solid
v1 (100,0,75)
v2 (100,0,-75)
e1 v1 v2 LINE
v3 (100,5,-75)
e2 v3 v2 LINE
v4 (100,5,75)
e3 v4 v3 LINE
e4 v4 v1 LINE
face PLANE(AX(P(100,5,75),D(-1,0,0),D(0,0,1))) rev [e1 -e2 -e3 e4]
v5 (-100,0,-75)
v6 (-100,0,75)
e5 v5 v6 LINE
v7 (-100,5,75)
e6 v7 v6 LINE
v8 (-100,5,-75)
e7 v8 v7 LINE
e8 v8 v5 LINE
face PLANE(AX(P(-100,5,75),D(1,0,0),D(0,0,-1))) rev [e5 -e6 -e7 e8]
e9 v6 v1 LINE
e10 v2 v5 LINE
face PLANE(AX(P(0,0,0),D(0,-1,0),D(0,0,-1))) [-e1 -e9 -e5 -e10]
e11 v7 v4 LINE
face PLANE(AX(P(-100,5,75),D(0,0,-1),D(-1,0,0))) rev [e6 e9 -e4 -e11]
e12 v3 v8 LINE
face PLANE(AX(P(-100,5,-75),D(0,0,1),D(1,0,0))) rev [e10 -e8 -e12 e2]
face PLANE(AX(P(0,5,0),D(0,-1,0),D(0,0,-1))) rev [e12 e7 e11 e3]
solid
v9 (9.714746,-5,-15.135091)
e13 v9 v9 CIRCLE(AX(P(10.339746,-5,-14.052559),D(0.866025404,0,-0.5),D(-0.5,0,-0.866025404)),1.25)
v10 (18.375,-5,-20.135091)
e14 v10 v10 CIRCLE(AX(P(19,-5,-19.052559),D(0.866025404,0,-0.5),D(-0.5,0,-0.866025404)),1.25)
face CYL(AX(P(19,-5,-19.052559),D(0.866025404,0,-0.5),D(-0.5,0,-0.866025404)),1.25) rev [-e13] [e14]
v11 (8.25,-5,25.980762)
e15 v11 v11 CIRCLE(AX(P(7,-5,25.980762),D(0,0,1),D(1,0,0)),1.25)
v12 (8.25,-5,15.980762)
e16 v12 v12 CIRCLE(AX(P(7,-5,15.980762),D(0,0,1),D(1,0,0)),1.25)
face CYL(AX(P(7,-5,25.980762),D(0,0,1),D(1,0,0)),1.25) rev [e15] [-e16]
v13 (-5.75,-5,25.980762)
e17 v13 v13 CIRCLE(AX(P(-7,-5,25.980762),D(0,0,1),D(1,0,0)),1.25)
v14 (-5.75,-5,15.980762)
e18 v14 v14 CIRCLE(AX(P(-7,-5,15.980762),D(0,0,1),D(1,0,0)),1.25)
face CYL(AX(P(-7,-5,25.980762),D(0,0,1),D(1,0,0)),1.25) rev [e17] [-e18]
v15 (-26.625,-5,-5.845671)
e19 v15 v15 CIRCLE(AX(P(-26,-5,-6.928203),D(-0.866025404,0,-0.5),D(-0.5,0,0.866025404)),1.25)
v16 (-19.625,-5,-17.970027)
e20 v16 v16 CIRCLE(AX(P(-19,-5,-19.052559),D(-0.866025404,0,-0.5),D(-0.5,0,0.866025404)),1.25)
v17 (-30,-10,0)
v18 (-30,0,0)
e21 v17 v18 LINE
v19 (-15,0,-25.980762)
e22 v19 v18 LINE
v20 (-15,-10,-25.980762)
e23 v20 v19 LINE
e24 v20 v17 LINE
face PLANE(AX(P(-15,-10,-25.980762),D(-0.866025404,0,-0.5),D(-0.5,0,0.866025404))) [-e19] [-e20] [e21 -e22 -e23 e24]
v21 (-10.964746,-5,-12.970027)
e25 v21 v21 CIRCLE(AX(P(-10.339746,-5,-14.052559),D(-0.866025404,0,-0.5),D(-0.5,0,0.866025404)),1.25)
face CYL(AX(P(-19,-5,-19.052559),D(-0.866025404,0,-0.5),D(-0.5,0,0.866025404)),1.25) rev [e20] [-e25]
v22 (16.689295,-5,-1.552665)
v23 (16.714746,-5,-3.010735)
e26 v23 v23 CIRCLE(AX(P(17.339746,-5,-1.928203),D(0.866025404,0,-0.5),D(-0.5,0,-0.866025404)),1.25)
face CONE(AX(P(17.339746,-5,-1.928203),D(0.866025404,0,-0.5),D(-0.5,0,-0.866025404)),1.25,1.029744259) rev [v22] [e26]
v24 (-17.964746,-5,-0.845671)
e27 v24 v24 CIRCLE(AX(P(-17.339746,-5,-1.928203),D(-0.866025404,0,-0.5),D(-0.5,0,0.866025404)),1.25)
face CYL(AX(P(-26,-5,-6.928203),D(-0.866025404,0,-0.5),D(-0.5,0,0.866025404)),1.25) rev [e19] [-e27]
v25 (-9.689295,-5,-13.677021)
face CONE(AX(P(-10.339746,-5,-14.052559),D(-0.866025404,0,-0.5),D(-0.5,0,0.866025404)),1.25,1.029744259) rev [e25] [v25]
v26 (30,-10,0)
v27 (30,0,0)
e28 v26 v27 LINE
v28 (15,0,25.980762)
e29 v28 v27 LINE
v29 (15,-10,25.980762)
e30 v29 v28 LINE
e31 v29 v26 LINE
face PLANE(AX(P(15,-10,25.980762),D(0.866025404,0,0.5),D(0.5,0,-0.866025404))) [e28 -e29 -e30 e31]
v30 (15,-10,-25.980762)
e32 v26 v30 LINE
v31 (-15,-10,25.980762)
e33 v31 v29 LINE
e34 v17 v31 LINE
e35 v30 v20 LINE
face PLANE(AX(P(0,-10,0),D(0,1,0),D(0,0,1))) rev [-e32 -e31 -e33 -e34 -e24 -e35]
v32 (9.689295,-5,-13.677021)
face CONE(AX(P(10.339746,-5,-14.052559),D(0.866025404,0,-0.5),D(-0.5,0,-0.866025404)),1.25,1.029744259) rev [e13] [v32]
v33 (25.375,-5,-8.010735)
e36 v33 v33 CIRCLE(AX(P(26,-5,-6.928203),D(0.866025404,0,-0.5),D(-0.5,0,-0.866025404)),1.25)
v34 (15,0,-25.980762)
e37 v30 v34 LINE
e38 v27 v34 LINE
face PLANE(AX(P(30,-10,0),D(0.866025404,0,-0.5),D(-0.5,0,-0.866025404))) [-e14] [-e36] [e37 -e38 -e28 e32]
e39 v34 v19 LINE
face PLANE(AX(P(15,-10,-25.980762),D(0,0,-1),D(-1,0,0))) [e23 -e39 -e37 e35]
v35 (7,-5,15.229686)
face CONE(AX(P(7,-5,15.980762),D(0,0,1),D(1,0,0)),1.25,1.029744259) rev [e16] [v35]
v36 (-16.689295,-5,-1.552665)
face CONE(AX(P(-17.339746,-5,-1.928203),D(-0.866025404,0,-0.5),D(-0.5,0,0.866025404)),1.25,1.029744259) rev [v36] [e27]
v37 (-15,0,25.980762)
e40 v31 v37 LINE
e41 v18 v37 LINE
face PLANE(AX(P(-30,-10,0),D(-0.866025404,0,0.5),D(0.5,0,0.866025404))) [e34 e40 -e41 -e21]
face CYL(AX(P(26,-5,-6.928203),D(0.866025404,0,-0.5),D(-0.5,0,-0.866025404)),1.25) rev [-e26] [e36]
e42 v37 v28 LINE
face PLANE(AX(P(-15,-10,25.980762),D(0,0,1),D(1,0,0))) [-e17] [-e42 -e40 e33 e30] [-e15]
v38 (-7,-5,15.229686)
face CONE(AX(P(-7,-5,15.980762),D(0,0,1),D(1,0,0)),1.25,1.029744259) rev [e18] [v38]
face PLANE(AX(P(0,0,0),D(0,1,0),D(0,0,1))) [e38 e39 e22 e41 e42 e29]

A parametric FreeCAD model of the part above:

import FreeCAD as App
import Part
import Sketcher
from FreeCAD import Vector
Q = App.Units.Quantity


def add_polygon(sketch, points):
    """Adds a closed chain of lines whose ends are joined by coincident constraints."""
    first, n = sketch.GeometryCount, len(points)
    for a, b in zip(points, points[1:] + points[:1]):
        sketch.addGeometry(Part.LineSegment(App.Vector(*a, 0), App.Vector(*b, 0)), False)
    for i in range(n):
        sketch.addConstraint(Sketcher.Constraint("Coincident", first + i, 2, first + (i + 1) % n, 1))

doc = App.newDocument("Part")
body = doc.addObject("PartDesign::Body", "Body")

# Sketch on XZ plane
sketch1 = body.newObject("Sketcher::SketchObject", "Sketch")
sketch1.AttachmentSupport = (doc.getObject("XZ_Plane"), [""])
sketch1.MapMode = "FlatFace"
add_polygon(sketch1, [(-100, -75), (-100, 75), (100, 75), (100, -75)])  # lines 0-3
sketch1.addConstraint(Sketcher.Constraint("Vertical", 0))
sketch1.addConstraint(Sketcher.Constraint("Horizontal", 1))
sketch1.addConstraint(Sketcher.Constraint("Vertical", 2))
sketch1.addConstraint(Sketcher.Constraint("Horizontal", 3))
sketch1.addConstraint(Sketcher.Constraint("Symmetric", 0, 2, 2, 2, -1, 1))
sketch1.addConstraint(Sketcher.Constraint("DistanceX", 1, 1, 1, 2, Q("200 mm")))
sketch1.addConstraint(Sketcher.Constraint("DistanceY", 0, 1, 0, 2, Q("150 mm")))
pad1 = body.newObject("PartDesign::Pad", "Pad")
pad1.Profile = sketch1
pad1.Length = 5
pad1.Reversed = True
body2 = doc.addObject("PartDesign::Body", "Body001")

# Sketch on XZ plane
sketch2 = body2.newObject("Sketcher::SketchObject", "Sketch001")
sketch2.AttachmentSupport = (doc.getObject("XZ_Plane001"), [""])
sketch2.MapMode = "FlatFace"
add_polygon(sketch2, [(-30, 0), (-15, 26), (15, 26), (30, 0), (15, -26), (-15, -26)])  # lines 0-5
sketch2.addConstraint(Sketcher.Constraint("Horizontal", 1))
sketch2.addConstraint(Sketcher.Constraint("Horizontal", 4))
sketch2.addConstraint(Sketcher.Constraint("Symmetric", 0, 2, 3, 2, -1, 1))
sketch2.addConstraint(Sketcher.Constraint("Symmetric", 2, 2, 5, 2, -1, 1))
sketch2.addConstraint(Sketcher.Constraint("PointOnObject", 2, 2, -1))
sketch2.addConstraint(Sketcher.Constraint("Parallel", 2, 5))
sketch2.addConstraint(Sketcher.Constraint("Vertical", 1, 2, 3, 2))
sketch2.addConstraint(Sketcher.Constraint("DistanceX", 1, 1, 1, 2, Q("30 mm")))
sketch2.addConstraint(Sketcher.Constraint("Angle", 0, Q("60 deg")))
sketch2.addConstraint(Sketcher.Constraint("Distance", 0, Q("30 mm")))
pad2 = body2.newObject("PartDesign::Pad", "Pad001")
pad2.Profile = sketch2
pad2.Length = 10

# Sketch on YZ plane
sketch3 = body2.newObject("Sketcher::SketchObject", "Sketch002")
sketch3.AttachmentSupport = (doc.getObject("YZ_Plane001"), [""])
sketch3.MapMode = "FlatFace"
sketch3.AttachmentOffset = App.Placement(Vector(0, 0, -7), App.Rotation())
add_polygon(sketch3, [(-5, 15.2), (-5, 26), (-6.2, 26), (-6.2, 16)])  # lines 0-3
sketch3.addGeometry(Part.LineSegment(Vector(-5, 26, 0), Vector(-5, 15.2, 0)), True)  # axis
sketch3.addConstraint(Sketcher.Constraint("Vertical", 0))
sketch3.addConstraint(Sketcher.Constraint("Horizontal", 1))
sketch3.addConstraint(Sketcher.Constraint("Vertical", 2))
sketch3.addConstraint(Sketcher.Constraint("Vertical", 4))
sketch3.addConstraint(Sketcher.Constraint("Coincident", 4, 1, 0, 2))
sketch3.addConstraint(Sketcher.Constraint("Equal", 0, 4))
sketch3.addConstraint(Sketcher.Constraint("DistanceY", 2, 2, 2, 1, Q("10 mm")))
sketch3.addConstraint(Sketcher.Constraint("Angle", 3, Q("-31 deg")))
sketch3.addConstraint(Sketcher.Constraint("DistanceX", 0, 2, -1, 1, Q("5 mm")))
sketch3.addConstraint(Sketcher.Constraint("DistanceX", 1, 2, 1, 1, Q("1.25 mm")))
sketch3.addConstraint(Sketcher.Constraint("DistanceY", -1, 1, 0, 2, Q("25.980762 mm")))
groove = body2.newObject("PartDesign::Groove", "Groove")
groove.Profile = sketch3
groove.ReferenceAxis = (sketch3, ["Axis0"])
groove.Angle = 360
doc.recompute()

linearpattern = body2.newObject("PartDesign::LinearPattern", "LinearPattern")
linearpattern.Originals = [groove]
linearpattern.Direction = (doc.getObject("X_Axis001"), [""])
linearpattern.Mode = "offset"
linearpattern.Offset = 14
linearpattern.Occurrences = 2
body2.Tip = linearpattern
doc.recompute()

polarpattern = body2.newObject("PartDesign::PolarPattern", "PolarPattern")
polarpattern.Originals = [groove]
polarpattern.Axis = (doc.getObject("Y_Axis001"), [""])
polarpattern.Angle = 360
polarpattern.Occurrences = 3
body2.Tip = polarpattern

# Sketch on an angled plane
sketch4 = body2.newObject("Sketcher::SketchObject", "Sketch003")
sketch4.Placement = App.Placement(Vector(19, -5, -19.052559), App.Rotation(Vector(0, -1, 0), Vector(-0.866025404, 0, 0.5), Vector(-0.5, 0, -0.866025404), "ZXY"))
add_polygon(sketch4, [(0, 10.8), (0, 0), (1.2, 0), (1.2, 10)])  # lines 0-3
sketch4.addConstraint(Sketcher.Constraint("Vertical", 0))
sketch4.addConstraint(Sketcher.Constraint("Horizontal", 1))
sketch4.addConstraint(Sketcher.Constraint("Vertical", 2))
sketch4.addConstraint(Sketcher.Constraint("Coincident", 0, 2, -1, 1))
sketch4.addConstraint(Sketcher.Constraint("DistanceY", 2, 1, 2, 2, Q("10 mm")))
sketch4.addConstraint(Sketcher.Constraint("Angle", 3, Q("149 deg")))
sketch4.addConstraint(Sketcher.Constraint("DistanceX", 1, 1, 1, 2, Q("1.25 mm")))
groove2 = body2.newObject("PartDesign::Groove", "Groove001")
groove2.Profile = sketch4
groove2.ReferenceAxis = (sketch4, ["V_Axis"])
groove2.Angle = 360

# Sketch on an angled plane
sketch5 = body2.newObject("Sketcher::SketchObject", "Sketch004")
sketch5.Placement = App.Placement(Vector(-26, -5, -6.928203), App.Rotation(Vector(0, -1, 0), Vector(0.866025404, 0, 0.5), Vector(-0.5, 0, 0.866025404), "ZXY"))
add_polygon(sketch5, [(0, 10.8), (0, 0), (1.2, 0), (1.2, 10)])  # lines 0-3
sketch5.addConstraint(Sketcher.Constraint("Vertical", 0))
sketch5.addConstraint(Sketcher.Constraint("Horizontal", 1))
sketch5.addConstraint(Sketcher.Constraint("Vertical", 2))
sketch5.addConstraint(Sketcher.Constraint("Coincident", 0, 2, -1, 1))
sketch5.addConstraint(Sketcher.Constraint("DistanceY", 2, 1, 2, 2, Q("10 mm")))
sketch5.addConstraint(Sketcher.Constraint("Angle", 3, Q("149 deg")))
sketch5.addConstraint(Sketcher.Constraint("DistanceX", 1, 1, 1, 2, Q("1.25 mm")))
groove3 = body2.newObject("PartDesign::Groove", "Groove002")
groove3.Profile = sketch5
groove3.ReferenceAxis = (sketch5, ["V_Axis"])
groove3.Angle = 360

doc.recompute()
